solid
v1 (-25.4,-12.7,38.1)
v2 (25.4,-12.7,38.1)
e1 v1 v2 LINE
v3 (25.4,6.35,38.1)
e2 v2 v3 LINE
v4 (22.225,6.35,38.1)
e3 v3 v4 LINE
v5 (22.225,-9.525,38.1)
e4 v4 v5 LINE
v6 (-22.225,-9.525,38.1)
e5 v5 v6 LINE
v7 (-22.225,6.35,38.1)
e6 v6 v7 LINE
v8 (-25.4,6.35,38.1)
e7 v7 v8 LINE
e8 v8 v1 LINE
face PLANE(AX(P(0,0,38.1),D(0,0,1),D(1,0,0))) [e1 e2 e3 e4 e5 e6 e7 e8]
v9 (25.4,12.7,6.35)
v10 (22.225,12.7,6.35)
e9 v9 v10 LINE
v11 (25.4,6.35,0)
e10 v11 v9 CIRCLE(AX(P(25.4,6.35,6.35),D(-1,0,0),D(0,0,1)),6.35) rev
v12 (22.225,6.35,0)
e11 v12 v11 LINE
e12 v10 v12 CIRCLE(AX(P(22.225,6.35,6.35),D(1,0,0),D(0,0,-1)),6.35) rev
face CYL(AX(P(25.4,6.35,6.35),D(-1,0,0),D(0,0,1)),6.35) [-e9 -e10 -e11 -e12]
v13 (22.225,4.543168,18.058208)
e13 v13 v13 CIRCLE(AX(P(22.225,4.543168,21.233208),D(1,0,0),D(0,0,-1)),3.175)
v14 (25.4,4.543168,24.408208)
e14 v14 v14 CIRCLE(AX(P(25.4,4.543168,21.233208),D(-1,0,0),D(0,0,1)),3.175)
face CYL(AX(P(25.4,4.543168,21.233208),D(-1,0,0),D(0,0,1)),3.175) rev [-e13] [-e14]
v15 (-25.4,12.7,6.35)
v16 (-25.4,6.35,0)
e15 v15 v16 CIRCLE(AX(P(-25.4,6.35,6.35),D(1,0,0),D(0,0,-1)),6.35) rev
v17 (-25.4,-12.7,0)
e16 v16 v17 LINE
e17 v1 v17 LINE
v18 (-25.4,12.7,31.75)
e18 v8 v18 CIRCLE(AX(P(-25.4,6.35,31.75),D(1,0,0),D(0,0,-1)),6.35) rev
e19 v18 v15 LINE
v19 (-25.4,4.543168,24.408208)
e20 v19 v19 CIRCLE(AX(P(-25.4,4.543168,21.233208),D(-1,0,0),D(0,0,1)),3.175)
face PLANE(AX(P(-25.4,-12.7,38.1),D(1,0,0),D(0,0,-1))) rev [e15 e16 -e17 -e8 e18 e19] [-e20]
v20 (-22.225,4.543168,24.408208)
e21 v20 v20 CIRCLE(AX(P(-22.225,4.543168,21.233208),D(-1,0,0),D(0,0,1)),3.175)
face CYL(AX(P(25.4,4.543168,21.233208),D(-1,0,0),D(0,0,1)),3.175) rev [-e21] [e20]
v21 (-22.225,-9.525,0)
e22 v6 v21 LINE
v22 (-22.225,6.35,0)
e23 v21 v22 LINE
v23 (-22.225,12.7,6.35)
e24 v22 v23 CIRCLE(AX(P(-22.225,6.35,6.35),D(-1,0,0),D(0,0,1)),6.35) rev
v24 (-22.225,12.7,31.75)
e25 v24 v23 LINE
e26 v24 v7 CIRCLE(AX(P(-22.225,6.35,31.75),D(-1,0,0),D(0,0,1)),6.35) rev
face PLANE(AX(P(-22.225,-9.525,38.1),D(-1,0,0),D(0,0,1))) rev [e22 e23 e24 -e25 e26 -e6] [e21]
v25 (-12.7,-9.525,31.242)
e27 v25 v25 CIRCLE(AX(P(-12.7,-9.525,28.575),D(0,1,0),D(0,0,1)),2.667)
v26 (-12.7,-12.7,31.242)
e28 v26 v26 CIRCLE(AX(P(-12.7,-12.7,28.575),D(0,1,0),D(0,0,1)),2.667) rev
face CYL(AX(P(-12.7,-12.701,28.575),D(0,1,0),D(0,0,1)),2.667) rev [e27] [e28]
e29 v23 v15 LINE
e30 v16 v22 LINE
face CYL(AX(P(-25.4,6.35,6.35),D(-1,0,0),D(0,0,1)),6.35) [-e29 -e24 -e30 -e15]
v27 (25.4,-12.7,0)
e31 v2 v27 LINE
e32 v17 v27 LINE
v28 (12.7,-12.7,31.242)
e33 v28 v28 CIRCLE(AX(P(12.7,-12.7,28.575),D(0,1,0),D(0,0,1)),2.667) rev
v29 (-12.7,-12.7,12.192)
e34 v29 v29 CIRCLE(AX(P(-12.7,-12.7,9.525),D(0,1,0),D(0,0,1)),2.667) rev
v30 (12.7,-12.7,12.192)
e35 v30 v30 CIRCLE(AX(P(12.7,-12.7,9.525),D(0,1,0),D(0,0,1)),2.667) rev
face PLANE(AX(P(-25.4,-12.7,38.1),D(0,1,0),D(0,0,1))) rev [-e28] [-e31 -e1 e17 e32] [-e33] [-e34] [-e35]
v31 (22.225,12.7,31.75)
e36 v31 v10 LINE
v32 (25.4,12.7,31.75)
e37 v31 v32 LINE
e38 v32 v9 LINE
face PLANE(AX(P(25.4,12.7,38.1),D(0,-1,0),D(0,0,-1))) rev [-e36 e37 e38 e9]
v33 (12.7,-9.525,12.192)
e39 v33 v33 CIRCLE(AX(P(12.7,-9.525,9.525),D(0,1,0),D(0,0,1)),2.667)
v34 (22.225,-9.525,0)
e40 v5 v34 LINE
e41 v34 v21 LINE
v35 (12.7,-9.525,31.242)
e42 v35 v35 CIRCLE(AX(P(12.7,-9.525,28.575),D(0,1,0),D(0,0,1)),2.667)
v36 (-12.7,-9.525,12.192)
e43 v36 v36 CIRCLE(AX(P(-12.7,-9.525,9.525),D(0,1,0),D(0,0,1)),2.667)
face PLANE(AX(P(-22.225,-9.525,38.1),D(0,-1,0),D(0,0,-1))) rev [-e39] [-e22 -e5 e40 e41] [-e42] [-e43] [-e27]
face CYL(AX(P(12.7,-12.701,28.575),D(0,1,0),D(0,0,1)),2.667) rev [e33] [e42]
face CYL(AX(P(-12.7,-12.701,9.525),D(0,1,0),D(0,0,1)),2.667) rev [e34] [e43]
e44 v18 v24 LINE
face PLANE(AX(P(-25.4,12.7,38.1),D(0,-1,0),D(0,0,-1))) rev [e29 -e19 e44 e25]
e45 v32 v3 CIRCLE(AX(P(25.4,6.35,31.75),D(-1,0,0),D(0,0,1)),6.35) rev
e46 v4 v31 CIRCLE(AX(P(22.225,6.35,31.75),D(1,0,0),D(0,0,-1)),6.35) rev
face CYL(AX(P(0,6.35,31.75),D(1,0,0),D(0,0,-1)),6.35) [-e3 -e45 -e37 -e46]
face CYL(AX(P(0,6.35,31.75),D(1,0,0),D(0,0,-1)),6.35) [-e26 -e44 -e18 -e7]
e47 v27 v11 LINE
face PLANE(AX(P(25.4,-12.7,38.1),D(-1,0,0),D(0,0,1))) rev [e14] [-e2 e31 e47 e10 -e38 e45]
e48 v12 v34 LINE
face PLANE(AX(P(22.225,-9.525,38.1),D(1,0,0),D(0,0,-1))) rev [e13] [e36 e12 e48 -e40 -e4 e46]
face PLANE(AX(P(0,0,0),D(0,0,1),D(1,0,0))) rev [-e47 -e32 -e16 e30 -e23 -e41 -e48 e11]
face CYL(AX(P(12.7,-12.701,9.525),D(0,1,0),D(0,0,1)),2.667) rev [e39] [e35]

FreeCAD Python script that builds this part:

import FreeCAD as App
import Part
import Sketcher
Q = App.Units.Quantity


def edges_at(feature, points):
    """Names of the edges that pass closest to the given points."""
    edges = feature.Shape.Edges
    near = lambda p: min(range(len(edges)), key=lambda i: edges[i].distToShape(Part.Vertex(*p))[0])
    return sorted({f"Edge{near(p) + 1}" for p in points})


def add_polygon(sketch, points):
    """Adds a closed chain of lines whose ends are joined by coincident constraints."""
    first, n = sketch.GeometryCount, len(points)
    for a, b in zip(points, points[1:] + points[:1]):
        sketch.addGeometry(Part.LineSegment(App.Vector(*a, 0), App.Vector(*b, 0)), False)
    for i in range(n):
        sketch.addConstraint(Sketcher.Constraint("Coincident", first + i, 2, first + (i + 1) % n, 1))

doc = App.newDocument("Part")
params = doc.addObject("Spreadsheet::Sheet", "Params")
for row, (alias, value) in enumerate([
    ("sketch1_width", "2 in"),
    ("sketch1_height", "1 in"),
    ("sketch1_width2", "1.75 in"),
    ("sketch1_height2", "0.875 in"),
    ("pad1_length", "1.5 in"),
    ("sketch2_diameter", "0.25 in"),
    ("sketch3_diameter", "0.21 in"),
    ("sketch4_diameter", "0.21 in"),
    ("sketch5_diameter", "0.21 in"),
    ("sketch6_diameter", "0.21 in"),
    ("fillet_radius", "0.25 in"),
], start=1):
    params.set(f"A{row}", alias)
    params.set(f"B{row}", "=" + value)
    params.setAlias(f"B{row}", alias)

body = doc.addObject("PartDesign::Body", "Body")

sketch1 = doc.addObject("Sketcher::SketchObject", "Sketch")
body.addObject(sketch1)
sketch1.AttachmentSupport = (doc.XY_Plane, [""])
sketch1.MapMode = "FlatFace"
add_polygon(sketch1, [(-22.225, -9.525), (-22.225, 12.7), (-25.4, 12.7), (-25.4, -12.7), (25.4, -12.7), (25.4, 12.7), (22.225, 12.7), (22.225, -9.525)])
sketch1.addConstraint(Sketcher.Constraint("Vertical", 0))
sketch1.addConstraint(Sketcher.Constraint("Horizontal", 1))
sketch1.addConstraint(Sketcher.Constraint("Vertical", 2))
sketch1.addConstraint(Sketcher.Constraint("Horizontal", 3))
sketch1.addConstraint(Sketcher.Constraint("Vertical", 4))
sketch1.addConstraint(Sketcher.Constraint("Horizontal", 5))
sketch1.addConstraint(Sketcher.Constraint("Vertical", 6))
sketch1.addConstraint(Sketcher.Constraint("Horizontal", 7))
sketch1.addConstraint(Sketcher.Constraint("Symmetric", 1, 2, 3, 2, -1, 1))
sketch1.addConstraint(Sketcher.Constraint("Symmetric", 0, 2, 5, 2, -2))
sketch1.addConstraint(Sketcher.Constraint("DistanceX", 3, 1, 3, 2, Q("2 in")))
sketch1.addConstraint(Sketcher.Constraint("DistanceY", 2, 2, 2, 1, Q("1 in")))
sketch1.addConstraint(Sketcher.Constraint("DistanceX", 7, 2, 7, 1, Q("1.75 in")))
sketch1.addConstraint(Sketcher.Constraint("DistanceY", 0, 1, 0, 2, Q("0.875 in")))
sketch1.setExpression("Constraints[18]", "Params.sketch1_width")
sketch1.setExpression("Constraints[19]", "Params.sketch1_height")
sketch1.setExpression("Constraints[20]", "Params.sketch1_width2")
sketch1.setExpression("Constraints[21]", "Params.sketch1_height2")
pad1 = doc.addObject("PartDesign::Pad", "Pad")
body.addObject(pad1)
pad1.Profile = sketch1
pad1.setExpression("Length", "Params.pad1_length")

sketch2 = doc.addObject("Sketcher::SketchObject", "Sketch001")
body.addObject(sketch2)
sketch2.AttachmentSupport = (doc.YZ_Plane, [""])
sketch2.MapMode = "FlatFace"
sketch2.AttachmentOffset = App.Placement(App.Vector(0, 0, -1 * 25.4), App.Rotation())
sketch2.addGeometry(Part.Circle(App.Vector(4.543168, 21.233208, 0), App.Vector(0, 0, 1), 3.175), False)
sketch2.addConstraint(Sketcher.Constraint("Diameter", 0, Q("0.25 in")))
sketch2.addConstraint(Sketcher.Constraint("DistanceY", -1, 1, 0, 3, Q("21.233208 mm")))
sketch2.addConstraint(Sketcher.Constraint("DistanceX", -1, 1, 0, 3, Q("4.543168 mm")))
sketch2.setExpression("Constraints[0]", "Params.sketch2_diameter")
pocket1 = doc.addObject("PartDesign::Pocket", "Pocket")
body.addObject(pocket1)
pocket1.Profile = sketch2
pocket1.Type = "ThroughAll"
pocket1.Reversed = True

sketch3 = doc.addObject("Sketcher::SketchObject", "Sketch002")
body.addObject(sketch3)
sketch3.AttachmentSupport = (doc.XZ_Plane, [""])
sketch3.MapMode = "FlatFace"
sketch3.AttachmentOffset = App.Placement(App.Vector(0, 0, 0.375 * 25.4), App.Rotation())
sketch3.addGeometry(Part.Circle(App.Vector(12.7, 9.525, 0), App.Vector(0, 0, 1), 2.667), False)
sketch3.addConstraint(Sketcher.Constraint("Diameter", 0, Q("0.21 in")))
sketch3.addConstraint(Sketcher.Constraint("DistanceX", -1, 1, 0, 3, Q("0.5 in")))
sketch3.addConstraint(Sketcher.Constraint("DistanceY", -1, 1, 0, 3, Q("0.375 in")))
sketch3.setExpression("Constraints[0]", "Params.sketch3_diameter")
pocket2 = doc.addObject("PartDesign::Pocket", "Pocket001")
body.addObject(pocket2)
pocket2.Profile = sketch3
pocket2.Type = "UpToFirst"
pocket2.Reversed = True

sketch4 = doc.addObject("Sketcher::SketchObject", "Sketch003")
body.addObject(sketch4)
sketch4.AttachmentSupport = (doc.XZ_Plane, [""])
sketch4.MapMode = "FlatFace"
sketch4.AttachmentOffset = App.Placement(App.Vector(0, 0, 0.375 * 25.4), App.Rotation())
sketch4.addGeometry(Part.Circle(App.Vector(12.7, 28.575, 0), App.Vector(0, 0, 1), 2.667), False)
sketch4.addConstraint(Sketcher.Constraint("Diameter", 0, Q("0.21 in")))
sketch4.addConstraint(Sketcher.Constraint("DistanceX", -1, 1, 0, 3, Q("0.5 in")))
sketch4.addConstraint(Sketcher.Constraint("DistanceY", -1, 1, 0, 3, Q("1.125 in")))
sketch4.setExpression("Constraints[0]", "Params.sketch4_diameter")
pocket3 = doc.addObject("PartDesign::Pocket", "Pocket002")
body.addObject(pocket3)
pocket3.Profile = sketch4
pocket3.Type = "UpToFirst"
pocket3.Reversed = True

sketch5 = doc.addObject("Sketcher::SketchObject", "Sketch004")
body.addObject(sketch5)
sketch5.AttachmentSupport = (doc.XZ_Plane, [""])
sketch5.MapMode = "FlatFace"
sketch5.AttachmentOffset = App.Placement(App.Vector(0, 0, 0.375 * 25.4), App.Rotation())
sketch5.addGeometry(Part.Circle(App.Vector(-12.7, 28.575, 0), App.Vector(0, 0, 1), 2.667), False)
sketch5.addConstraint(Sketcher.Constraint("Diameter", 0, Q("0.21 in")))
sketch5.addConstraint(Sketcher.Constraint("DistanceX", 0, 3, -1, 1, Q("0.5 in")))
sketch5.addConstraint(Sketcher.Constraint("DistanceY", -1, 1, 0, 3, Q("1.125 in")))
sketch5.setExpression("Constraints[0]", "Params.sketch5_diameter")
pocket4 = doc.addObject("PartDesign::Pocket", "Pocket003")
body.addObject(pocket4)
pocket4.Profile = sketch5
pocket4.Type = "UpToFirst"
pocket4.Reversed = True

sketch6 = doc.addObject("Sketcher::SketchObject", "Sketch005")
body.addObject(sketch6)
sketch6.AttachmentSupport = (doc.XZ_Plane, [""])
sketch6.MapMode = "FlatFace"
sketch6.AttachmentOffset = App.Placement(App.Vector(0, 0, 0.375 * 25.4), App.Rotation())
sketch6.addGeometry(Part.Circle(App.Vector(-12.7, 9.525, 0), App.Vector(0, 0, 1), 2.667), False)
sketch6.addConstraint(Sketcher.Constraint("Diameter", 0, Q("0.21 in")))
sketch6.addConstraint(Sketcher.Constraint("DistanceX", 0, 3, -1, 1, Q("0.5 in")))
sketch6.addConstraint(Sketcher.Constraint("DistanceY", -1, 1, 0, 3, Q("0.375 in")))
sketch6.setExpression("Constraints[0]", "Params.sketch6_diameter")
pocket5 = doc.addObject("PartDesign::Pocket", "Pocket004")
body.addObject(pocket5)
pocket5.Profile = sketch6
pocket5.Type = "UpToFirst"
pocket5.Reversed = True
doc.recompute()

fillet = doc.addObject("PartDesign::Fillet", "Fillet")
body.addObject(fillet)
fillet.Base = (pocket5, edges_at(pocket5, [
    (-23.812, 12.7, 38.1),
    (23.812, 12.7, 38.1),
    (23.812, 12.7, 0),
    (-23.812, 12.7, 0),
]))
fillet.setExpression("Radius", "Params.fillet_radius")

doc.recompute()
